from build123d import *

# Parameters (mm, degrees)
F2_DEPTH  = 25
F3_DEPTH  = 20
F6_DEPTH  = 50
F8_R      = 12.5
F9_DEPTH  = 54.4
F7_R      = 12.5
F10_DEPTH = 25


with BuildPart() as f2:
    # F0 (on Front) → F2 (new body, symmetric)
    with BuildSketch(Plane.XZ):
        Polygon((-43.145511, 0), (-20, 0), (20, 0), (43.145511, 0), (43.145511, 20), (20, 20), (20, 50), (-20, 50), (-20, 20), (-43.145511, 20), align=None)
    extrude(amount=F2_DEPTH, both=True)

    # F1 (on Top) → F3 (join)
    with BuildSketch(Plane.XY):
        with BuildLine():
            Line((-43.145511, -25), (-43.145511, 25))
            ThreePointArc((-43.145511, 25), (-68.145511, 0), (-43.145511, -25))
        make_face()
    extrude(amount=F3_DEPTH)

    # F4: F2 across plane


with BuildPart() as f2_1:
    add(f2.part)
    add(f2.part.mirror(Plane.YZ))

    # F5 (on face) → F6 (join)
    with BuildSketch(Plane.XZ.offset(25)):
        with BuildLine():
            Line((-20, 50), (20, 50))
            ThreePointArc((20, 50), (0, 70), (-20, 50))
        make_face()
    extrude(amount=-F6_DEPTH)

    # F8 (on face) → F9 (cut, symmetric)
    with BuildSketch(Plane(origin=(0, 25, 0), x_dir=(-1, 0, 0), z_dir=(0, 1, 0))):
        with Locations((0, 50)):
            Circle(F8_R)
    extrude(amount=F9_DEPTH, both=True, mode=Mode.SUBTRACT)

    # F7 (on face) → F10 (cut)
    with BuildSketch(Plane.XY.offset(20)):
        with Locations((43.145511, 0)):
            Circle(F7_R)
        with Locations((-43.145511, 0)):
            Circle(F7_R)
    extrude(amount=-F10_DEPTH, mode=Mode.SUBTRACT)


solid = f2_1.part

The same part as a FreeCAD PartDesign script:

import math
import FreeCAD as App
import Part
import Sketcher
from FreeCAD import Vector
Q = App.Units.Quantity

doc = App.newDocument("Part")
body = doc.addObject("PartDesign::Body", "Body")

# Sketch on XZ plane
sketch1 = doc.addObject("Sketcher::SketchObject", "Sketch")
body.addObject(sketch1)
sketch1.AttachmentSupport = (doc.XZ_Plane, [""])
sketch1.MapMode = "FlatFace"
sketch1.addGeometry([
    Part.LineSegment(Vector(-43, 0, 0), Vector(43, 0, 0)),  # 0
    Part.LineSegment(Vector(43, 0, 0), Vector(43, 20, 0)),  # 1
    Part.LineSegment(Vector(43, 20, 0), Vector(20, 20, 0)),  # 2
    Part.LineSegment(Vector(20, 20, 0), Vector(20, 50, 0)),  # 3
    Part.LineSegment(Vector(20, 50, 0), Vector(-20, 50, 0)),  # 4
    Part.LineSegment(Vector(-20, 50, 0), Vector(-20, 20, 0)),  # 5
    Part.LineSegment(Vector(-20, 20, 0), Vector(-43, 20, 0)),  # 6
    Part.LineSegment(Vector(-43, 20, 0), Vector(-43, 0, 0)),  # 7
], False)
sketch1.addConstraint([
    Sketcher.Constraint("Coincident", 0, 2, 1, 1),
    Sketcher.Constraint("Coincident", 1, 2, 2, 1),
    Sketcher.Constraint("Coincident", 2, 2, 3, 1),
    Sketcher.Constraint("Coincident", 3, 2, 4, 1),
    Sketcher.Constraint("Coincident", 4, 2, 5, 1),
    Sketcher.Constraint("Coincident", 5, 2, 6, 1),
    Sketcher.Constraint("Coincident", 6, 2, 7, 1),
    Sketcher.Constraint("Coincident", 7, 2, 0, 1),
    Sketcher.Constraint("Horizontal", 0),
    Sketcher.Constraint("Vertical", 1),
    Sketcher.Constraint("Horizontal", 2),
    Sketcher.Constraint("Vertical", 3),
    Sketcher.Constraint("Horizontal", 4),
    Sketcher.Constraint("Vertical", 5),
    Sketcher.Constraint("Horizontal", 6),
    Sketcher.Constraint("Vertical", 7),
    Sketcher.Constraint("Symmetric", 0, 2, 7, 2, -1, 1),
    Sketcher.Constraint("Symmetric", 2, 2, 5, 2, -2),
    Sketcher.Constraint("DistanceX", 4, 2, 4, 1, Q("40 mm")),
    Sketcher.Constraint("DistanceY", 1, 1, 1, 2, Q("20 mm")),
    Sketcher.Constraint("DistanceY", 3, 1, 3, 2, Q("30 mm")),
    Sketcher.Constraint("DistanceX", 0, 1, 0, 2, Q("86.291022 mm")),
])
pad1 = doc.addObject("PartDesign::Pad", "Pad")
body.addObject(pad1)
pad1.Profile = sketch1
pad1.Length = 50
pad1.Midplane = True

# Sketch on XY plane
sketch2 = doc.addObject("Sketcher::SketchObject", "Sketch001")
body.addObject(sketch2)
sketch2.AttachmentSupport = (doc.XY_Plane, [""])
sketch2.MapMode = "FlatFace"
sketch2.addGeometry([
    Part.LineSegment(Vector(-43, -25, 0), Vector(-43, 25, 0)),
    Part.ArcOfCircle(Part.Circle(Vector(-43, 0, 0), Vector(0, 0, 1), 25), math.radians(90), math.radians(270)),
], False)
sketch2.addConstraint([
    Sketcher.Constraint("Coincident", 0, 1, 1, 2),
    Sketcher.Constraint("Coincident", 1, 1, 0, 2),
    Sketcher.Constraint("Vertical", 0),
    Sketcher.Constraint("PointOnObject", 1, 3, -1),
    Sketcher.Constraint("Vertical", 1, 3, 0, 1),
    Sketcher.Constraint("Radius", 1, Q("25 mm")),
    Sketcher.Constraint("DistanceX", 1, 3, -1, 1, Q("43.145511 mm")),
])
pad2 = doc.addObject("PartDesign::Pad", "Pad001")
body.addObject(pad2)
pad2.Profile = sketch2
pad2.Length = 20
body2 = doc.addObject("PartDesign::Body", "Body001")
doc.recompute()

body2.BaseFeature = body
doc.recompute()

mirroring = doc.addObject("Part::Mirroring", "Mirroring")
mirroring.Source = body
mirroring.Base = Vector(0, 0, 0)
mirroring.Normal = Vector(1, 0, 0)
body3 = doc.addObject("PartDesign::Body", "Body002")
body3.BaseFeature = mirroring
boolean = doc.addObject("PartDesign::Boolean", "Boolean")
body2.addObject(boolean)
boolean.Type = "Fuse"
boolean.addObjects([body3])
doc.recompute()

# Sketch on XZ plane
sketch3 = doc.addObject("Sketcher::SketchObject", "Sketch002")
body2.addObject(sketch3)
sketch3.AttachmentSupport = (doc.getObject("XZ_Plane001"), [""])
sketch3.MapMode = "FlatFace"
sketch3.AttachmentOffset = App.Placement(Vector(0, 0, 25), App.Rotation())
sketch3.addGeometry([
    Part.LineSegment(Vector(-20, 50, 0), Vector(20, 50, 0)),
    Part.ArcOfCircle(Part.Circle(Vector(0, 50, 0), Vector(0, 0, 1), 20), math.radians(0), math.radians(180)),
], False)
sketch3.addConstraint([
    Sketcher.Constraint("Coincident", 0, 1, 1, 2),
    Sketcher.Constraint("Coincident", 1, 1, 0, 2),
    Sketcher.Constraint("Horizontal", 0),
    Sketcher.Constraint("PointOnObject", 1, 3, -2),
    Sketcher.Constraint("Horizontal", 1, 3, 0, 1),
    Sketcher.Constraint("Radius", 1, Q("20 mm")),
    Sketcher.Constraint("DistanceY", -1, 1, 1, 3, Q("50 mm")),
])
pad3 = doc.addObject("PartDesign::Pad", "Pad002")
body2.addObject(pad3)
pad3.Profile = sketch3
pad3.Length = 50
pad3.Reversed = True

# Sketch on XZ plane
sketch4 = doc.addObject("Sketcher::SketchObject", "Sketch003")
body2.addObject(sketch4)
sketch4.AttachmentSupport = (doc.getObject("XZ_Plane001"), [""])
sketch4.MapMode = "FlatFace"
sketch4.AttachmentOffset = App.Placement(Vector(0, 0, -25), App.Rotation())
sketch4.addGeometry(Part.Circle(Vector(0, 50, 0), Vector(0, 0, 1), 12), False)
sketch4.addConstraint([
    Sketcher.Constraint("PointOnObject", 0, 3, -2),
    Sketcher.Constraint("Diameter", 0, Q("25 mm")),
    Sketcher.Constraint("DistanceY", -1, 1, 0, 3, Q("50 mm")),
])
pocket1 = doc.addObject("PartDesign::Pocket", "Pocket")
body2.addObject(pocket1)
pocket1.Profile = sketch4
pocket1.Length = 108.8
pocket1.Midplane = True

# Sketch on XY plane
sketch5 = doc.addObject("Sketcher::SketchObject", "Sketch004")
body2.addObject(sketch5)
sketch5.AttachmentSupport = (doc.getObject("XY_Plane001"), [""])
sketch5.MapMode = "FlatFace"
sketch5.AttachmentOffset = App.Placement(Vector(0, 0, 20), App.Rotation())
sketch5.addGeometry([
    Part.Circle(Vector(43, 0, 0), Vector(0, 0, 1), 12),
    Part.Circle(Vector(-43, 0, 0), Vector(0, 0, 1), 12),
], False)
sketch5.addConstraint([
    Sketcher.Constraint("Equal", 0, 1),
    Sketcher.Constraint("Symmetric", 0, 3, 1, 3, -1, 1),
    Sketcher.Constraint("PointOnObject", 0, 3, -1),
    Sketcher.Constraint("Diameter", 0, Q("25 mm")),
    Sketcher.Constraint("DistanceX", -1, 1, 0, 3, Q("43.145511 mm")),
])
pocket2 = doc.addObject("PartDesign::Pocket", "Pocket001")
body2.addObject(pocket2)
pocket2.Profile = sketch5
pocket2.Length = 25
mirroring.Visibility = False

doc.recompute()
